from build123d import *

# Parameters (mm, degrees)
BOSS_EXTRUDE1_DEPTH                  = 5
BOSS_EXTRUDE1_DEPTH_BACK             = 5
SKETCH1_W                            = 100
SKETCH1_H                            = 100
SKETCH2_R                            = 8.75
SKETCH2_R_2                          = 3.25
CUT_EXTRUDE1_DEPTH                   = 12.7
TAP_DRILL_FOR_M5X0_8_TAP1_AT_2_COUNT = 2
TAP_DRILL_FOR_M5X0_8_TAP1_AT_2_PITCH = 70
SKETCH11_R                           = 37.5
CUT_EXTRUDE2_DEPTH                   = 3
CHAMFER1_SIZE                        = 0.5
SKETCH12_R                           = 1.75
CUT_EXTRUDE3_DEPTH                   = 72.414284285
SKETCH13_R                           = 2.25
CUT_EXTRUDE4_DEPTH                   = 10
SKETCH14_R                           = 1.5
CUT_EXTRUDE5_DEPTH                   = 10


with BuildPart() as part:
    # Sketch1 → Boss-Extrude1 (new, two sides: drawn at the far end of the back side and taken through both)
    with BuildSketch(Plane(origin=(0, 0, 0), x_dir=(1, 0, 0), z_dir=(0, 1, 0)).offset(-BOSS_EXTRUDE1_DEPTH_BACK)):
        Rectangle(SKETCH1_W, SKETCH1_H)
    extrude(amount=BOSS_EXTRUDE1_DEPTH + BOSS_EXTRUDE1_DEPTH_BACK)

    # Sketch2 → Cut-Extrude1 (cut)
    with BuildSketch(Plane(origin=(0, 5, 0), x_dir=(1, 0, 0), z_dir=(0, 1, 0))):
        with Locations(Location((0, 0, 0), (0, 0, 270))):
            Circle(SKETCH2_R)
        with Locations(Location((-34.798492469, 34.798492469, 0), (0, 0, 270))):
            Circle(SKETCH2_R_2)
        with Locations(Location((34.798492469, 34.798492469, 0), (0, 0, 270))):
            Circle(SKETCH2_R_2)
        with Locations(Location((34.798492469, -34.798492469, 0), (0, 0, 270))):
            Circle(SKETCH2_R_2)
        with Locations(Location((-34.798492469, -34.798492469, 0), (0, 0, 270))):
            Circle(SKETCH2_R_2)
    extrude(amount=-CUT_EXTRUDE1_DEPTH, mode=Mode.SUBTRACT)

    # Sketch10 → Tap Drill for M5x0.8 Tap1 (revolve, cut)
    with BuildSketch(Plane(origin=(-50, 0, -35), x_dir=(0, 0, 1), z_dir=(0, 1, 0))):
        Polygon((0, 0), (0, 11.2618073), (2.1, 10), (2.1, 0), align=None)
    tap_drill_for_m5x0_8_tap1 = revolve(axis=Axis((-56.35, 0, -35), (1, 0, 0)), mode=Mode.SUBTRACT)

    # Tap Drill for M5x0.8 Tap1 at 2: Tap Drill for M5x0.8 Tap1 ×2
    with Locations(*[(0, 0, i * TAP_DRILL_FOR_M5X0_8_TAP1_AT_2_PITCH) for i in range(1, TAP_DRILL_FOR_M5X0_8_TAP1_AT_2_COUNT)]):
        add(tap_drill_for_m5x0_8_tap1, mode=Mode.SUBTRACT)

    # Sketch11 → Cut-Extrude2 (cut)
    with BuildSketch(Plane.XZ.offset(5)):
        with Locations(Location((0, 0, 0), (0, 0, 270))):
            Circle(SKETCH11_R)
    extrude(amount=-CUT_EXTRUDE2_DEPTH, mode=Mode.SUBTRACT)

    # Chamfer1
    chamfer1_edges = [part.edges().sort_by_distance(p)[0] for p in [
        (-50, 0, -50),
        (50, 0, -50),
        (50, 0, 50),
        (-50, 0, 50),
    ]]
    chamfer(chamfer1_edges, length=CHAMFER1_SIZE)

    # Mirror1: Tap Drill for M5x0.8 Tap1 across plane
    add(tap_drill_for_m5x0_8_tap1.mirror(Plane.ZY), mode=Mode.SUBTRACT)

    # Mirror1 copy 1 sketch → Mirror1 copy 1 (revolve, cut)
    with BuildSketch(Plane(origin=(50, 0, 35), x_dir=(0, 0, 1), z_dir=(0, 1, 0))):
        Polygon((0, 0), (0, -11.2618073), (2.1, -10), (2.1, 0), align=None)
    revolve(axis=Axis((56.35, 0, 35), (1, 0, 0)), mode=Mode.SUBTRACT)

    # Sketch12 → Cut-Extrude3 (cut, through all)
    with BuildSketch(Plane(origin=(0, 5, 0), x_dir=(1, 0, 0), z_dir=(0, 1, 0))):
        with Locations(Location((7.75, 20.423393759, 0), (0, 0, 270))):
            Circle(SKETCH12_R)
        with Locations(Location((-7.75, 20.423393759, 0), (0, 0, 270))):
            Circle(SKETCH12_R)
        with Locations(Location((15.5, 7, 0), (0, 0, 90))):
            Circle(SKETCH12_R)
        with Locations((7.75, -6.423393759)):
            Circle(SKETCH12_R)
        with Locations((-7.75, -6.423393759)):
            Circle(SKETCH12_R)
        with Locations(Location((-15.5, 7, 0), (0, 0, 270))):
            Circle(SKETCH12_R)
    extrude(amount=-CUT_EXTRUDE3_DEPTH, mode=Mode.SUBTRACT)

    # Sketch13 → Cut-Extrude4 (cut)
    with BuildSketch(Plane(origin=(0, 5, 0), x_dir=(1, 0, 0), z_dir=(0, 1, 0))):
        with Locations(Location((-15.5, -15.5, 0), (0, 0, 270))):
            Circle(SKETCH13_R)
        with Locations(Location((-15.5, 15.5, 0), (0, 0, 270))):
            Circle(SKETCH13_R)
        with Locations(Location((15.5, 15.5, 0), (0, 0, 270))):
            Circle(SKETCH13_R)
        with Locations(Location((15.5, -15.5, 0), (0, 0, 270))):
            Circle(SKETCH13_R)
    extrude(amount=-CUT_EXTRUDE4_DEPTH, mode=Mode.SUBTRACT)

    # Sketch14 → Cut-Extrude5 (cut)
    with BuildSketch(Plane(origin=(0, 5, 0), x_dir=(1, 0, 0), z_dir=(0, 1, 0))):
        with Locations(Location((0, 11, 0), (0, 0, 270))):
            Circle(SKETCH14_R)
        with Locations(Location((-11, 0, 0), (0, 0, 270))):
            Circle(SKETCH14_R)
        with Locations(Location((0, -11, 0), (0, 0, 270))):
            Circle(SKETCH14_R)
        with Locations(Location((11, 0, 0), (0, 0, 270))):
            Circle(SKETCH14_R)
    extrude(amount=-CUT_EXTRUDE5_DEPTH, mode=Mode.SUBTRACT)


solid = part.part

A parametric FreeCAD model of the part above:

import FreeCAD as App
import Part
import Sketcher
from FreeCAD import Vector
Q = App.Units.Quantity


def edges_at(feature, points):
    """Names of the edges that pass closest to the given points."""
    edges = feature.Shape.Edges
    near = lambda p: min(range(len(edges)), key=lambda i: edges[i].distToShape(Part.Vertex(*p))[0])
    return sorted({f"Edge{near(p) + 1}" for p in points})


def add_polygon(sketch, points):
    """Adds a closed chain of lines whose ends are joined by coincident constraints."""
    first, n = sketch.GeometryCount, len(points)
    for a, b in zip(points, points[1:] + points[:1]):
        sketch.addGeometry(Part.LineSegment(App.Vector(*a, 0), App.Vector(*b, 0)), False)
    for i in range(n):
        sketch.addConstraint(Sketcher.Constraint("Coincident", first + i, 2, first + (i + 1) % n, 1))

doc = App.newDocument("Part")
body = doc.addObject("PartDesign::Body", "Body")

# Sketch on XZ plane
sketch1 = body.newObject("Sketcher::SketchObject", "Sketch")
sketch1.AttachmentSupport = (doc.getObject("XZ_Plane"), [""])
sketch1.MapMode = "FlatFace"
add_polygon(sketch1, [(-50, -50), (-50, 50), (50, 50), (50, -50)])  # lines 0-3
sketch1.addConstraint([
    Sketcher.Constraint("Vertical", 0),
    Sketcher.Constraint("Horizontal", 1),
    Sketcher.Constraint("Vertical", 2),
    Sketcher.Constraint("Horizontal", 3),
    Sketcher.Constraint("Symmetric", 0, 2, 2, 2, -1, 1),
    Sketcher.Constraint("Equal", 3, 0),
    Sketcher.Constraint("DistanceX", 1, 1, 1, 2, Q("100 mm")),
])
pad1 = body.newObject("PartDesign::Pad", "Pad")
pad1.Profile = sketch1
pad1.Type = "TwoLengths"
pad1.Length = 5
pad1.Length2 = 5
pad1.Reversed = True

# Sketch on XZ plane
sketch2 = body.newObject("Sketcher::SketchObject", "Sketch001")
sketch2.AttachmentSupport = (doc.getObject("XZ_Plane"), [""])
sketch2.MapMode = "FlatFace"
sketch2.AttachmentOffset = App.Placement(Vector(0, 0, -5), App.Rotation())
sketch2.addGeometry([
    Part.Circle(Vector(0, 0, 0), Vector(0, 0, 1), 8.75),  # 0
    Part.Circle(Vector(-34.798492, -34.798492, 0), Vector(0, 0, 1), 3.25),  # 1
    Part.Circle(Vector(34.798492, -34.798492, 0), Vector(0, 0, 1), 3.25),  # 2
    Part.Circle(Vector(34.798492, 34.798492, 0), Vector(0, 0, 1), 3.25),  # 3
    Part.Circle(Vector(-34.798492, 34.798492, 0), Vector(0, 0, 1), 3.25),  # 4
], False)
sketch2.addConstraint([
    Sketcher.Constraint("Coincident", 0, 3, -1, 1),
    Sketcher.Constraint("Equal", 1, 2),
    Sketcher.Constraint("Equal", 2, 3),
    Sketcher.Constraint("Equal", 3, 4),
    Sketcher.Constraint("Symmetric", 1, 3, 3, 3, -1, 1),
    Sketcher.Constraint("Symmetric", 2, 3, 4, 3, -1, 1),
    Sketcher.Constraint("Symmetric", 1, 3, 2, 3, -2),
    Sketcher.Constraint("Diameter", 0, Q("17.5 mm")),
    Sketcher.Constraint("Diameter", 1, Q("6.5 mm")),
    Sketcher.Constraint("DistanceX", 1, 3, -1, 1, Q("34.798492 mm")),
    Sketcher.Constraint("DistanceY", 1, 3, -1, 1, Q("34.798492 mm")),
])
pocket1 = body.newObject("PartDesign::Pocket", "Pocket")
pocket1.Profile = sketch2
pocket1.Length = 12.7
pocket1.Reversed = True

# Sketch on XZ plane
sketch3 = body.newObject("Sketcher::SketchObject", "Sketch002")
sketch3.AttachmentSupport = (doc.getObject("XZ_Plane"), [""])
sketch3.MapMode = "FlatFace"
add_polygon(sketch3, [(-38.738193, -35), (-50, -35), (-50, -32.9), (-40, -32.9)])  # lines 0-3
sketch3.addGeometry(Part.LineSegment(Vector(-50, -35, 0), Vector(-38.738193, -35, 0)), True)  # axis
sketch3.addConstraint([
    Sketcher.Constraint("Horizontal", 0),
    Sketcher.Constraint("Vertical", 1),
    Sketcher.Constraint("Horizontal", 2),
    Sketcher.Constraint("Horizontal", 4),
    Sketcher.Constraint("Coincident", 4, 1, 0, 2),
    Sketcher.Constraint("Equal", 0, 4),
    Sketcher.Constraint("DistanceX", 2, 1, 2, 2, Q("10 mm")),
    Sketcher.Constraint("Angle", 3, Q("-59 deg")),
    Sketcher.Constraint("DistanceY", 1, 1, 1, 2, Q("2.1 mm")),
    Sketcher.Constraint("DistanceX", 0, 2, -1, 1, Q("50 mm")),
    Sketcher.Constraint("DistanceY", 0, 2, -1, 1, Q("35 mm")),
])
groove = body.newObject("PartDesign::Groove", "Groove")
groove.Profile = sketch3
groove.ReferenceAxis = (sketch3, ["Axis0"])
groove.Angle = 360
doc.recompute()

linearpattern = body.newObject("PartDesign::LinearPattern", "LinearPattern")
linearpattern.Originals = [groove]
linearpattern.Direction = (doc.getObject("Z_Axis"), [""])
linearpattern.Mode = "offset"
linearpattern.Offset = 70
linearpattern.Occurrences = 2
body.Tip = linearpattern

# Sketch on XZ plane
sketch4 = body.newObject("Sketcher::SketchObject", "Sketch003")
sketch4.AttachmentSupport = (doc.getObject("XZ_Plane"), [""])
sketch4.MapMode = "FlatFace"
sketch4.AttachmentOffset = App.Placement(Vector(0, 0, 5), App.Rotation())
sketch4.addGeometry(Part.Circle(Vector(0, 0, 0), Vector(0, 0, 1), 37.5), False)
sketch4.addConstraint([
    Sketcher.Constraint("Coincident", 0, 3, -1, 1),
    Sketcher.Constraint("Diameter", 0, Q("75 mm")),
])
pocket2 = body.newObject("PartDesign::Pocket", "Pocket001")
pocket2.Profile = sketch4
pocket2.Length = 3
doc.recompute()

chamfer = body.newObject("PartDesign::Chamfer", "Chamfer")
chamfer.Base = (pocket2, edges_at(pocket2, [
    (-50, 0, -50),
    (50, 0, -50),
    (50, 0, 50),
    (-50, 0, 50),
]))
chamfer.Size = 0.5
doc.recompute()

mirrored = body.newObject("PartDesign::Mirrored", "Mirrored")
mirrored.Originals = [groove]
mirrored.MirrorPlane = (doc.getObject("YZ_Plane"), [""])
body.Tip = mirrored

# Sketch on XZ plane
sketch5 = body.newObject("Sketcher::SketchObject", "Sketch004")
sketch5.AttachmentSupport = (doc.getObject("XZ_Plane"), [""])
sketch5.MapMode = "FlatFace"
add_polygon(sketch5, [(50, 35), (38.738193, 35), (40, 37.1), (50, 37.1)])  # lines 0-3
sketch5.addGeometry(Part.LineSegment(Vector(38.738193, 35, 0), Vector(50, 35, 0)), True)  # axis
sketch5.addConstraint([
    Sketcher.Constraint("Horizontal", 0),
    Sketcher.Constraint("Horizontal", 2),
    Sketcher.Constraint("Vertical", 3),
    Sketcher.Constraint("Horizontal", 4),
    Sketcher.Constraint("Coincident", 4, 1, 0, 2),
    Sketcher.Constraint("Vertical", 2, 2, 4, 2),
    Sketcher.Constraint("DistanceX", 2, 1, 2, 2, Q("10 mm")),
    Sketcher.Constraint("Angle", 1, Q("59 deg")),
    Sketcher.Constraint("DistanceY", 3, 2, 3, 1, Q("2.1 mm")),
    Sketcher.Constraint("DistanceY", -1, 1, 0, 2, Q("35 mm")),
    Sketcher.Constraint("DistanceX", -1, 1, 1, 2, Q("40 mm")),
])
groove2 = body.newObject("PartDesign::Groove", "Groove001")
groove2.Profile = sketch5
groove2.ReferenceAxis = (sketch5, ["Axis0"])
groove2.Angle = 360

# Sketch on XZ plane
sketch6 = body.newObject("Sketcher::SketchObject", "Sketch005")
sketch6.AttachmentSupport = (doc.getObject("XZ_Plane"), [""])
sketch6.MapMode = "FlatFace"
sketch6.AttachmentOffset = App.Placement(Vector(0, 0, -5), App.Rotation())
sketch6.addGeometry([
    Part.Circle(Vector(7.75, -20.423394, 0), Vector(0, 0, 1), 1.75),  # 0
    Part.Circle(Vector(-7.75, -20.423394, 0), Vector(0, 0, 1), 1.75),  # 1
    Part.Circle(Vector(15.5, -7, 0), Vector(0, 0, 1), 1.75),  # 2
    Part.Circle(Vector(7.75, 6.423394, 0), Vector(0, 0, 1), 1.75),  # 3
    Part.Circle(Vector(-7.75, 6.423394, 0), Vector(0, 0, 1), 1.75),  # 4
    Part.Circle(Vector(-15.5, -7, 0), Vector(0, 0, 1), 1.75),  # 5
], False)
sketch6.addConstraint([
    Sketcher.Constraint("Equal", 0, 1),
    Sketcher.Constraint("Equal", 1, 2),
    Sketcher.Constraint("Equal", 2, 3),
    Sketcher.Constraint("Equal", 3, 4),
    Sketcher.Constraint("Equal", 4, 5),
    Sketcher.Constraint("Symmetric", 0, 3, 1, 3, -2),
    Sketcher.Constraint("Symmetric", 3, 3, 4, 3, -2),
    Sketcher.Constraint("Symmetric", 2, 3, 5, 3, -2),
    Sketcher.Constraint("Vertical", 0, 3, 3, 3),
    Sketcher.Constraint("Diameter", 0, Q("3.5 mm")),
    Sketcher.Constraint("DistanceY", 2, 3, -1, 1, Q("7 mm")),
    Sketcher.Constraint("DistanceX", 5, 3, 2, 3, Q("31 mm")),
    Sketcher.Constraint("DistanceX", 1, 3, 0, 3, Q("15.5 mm")),
    Sketcher.Constraint("DistanceY", 0, 3, -1, 1, Q("20.423394 mm")),
    Sketcher.Constraint("DistanceY", -1, 1, 3, 3, Q("6.423394 mm")),
])
pocket3 = body.newObject("PartDesign::Pocket", "Pocket002")
pocket3.Profile = sketch6
pocket3.Type = "ThroughAll"
pocket3.Reversed = True

# Sketch on XZ plane
sketch7 = body.newObject("Sketcher::SketchObject", "Sketch006")
sketch7.AttachmentSupport = (doc.getObject("XZ_Plane"), [""])
sketch7.MapMode = "FlatFace"
sketch7.AttachmentOffset = App.Placement(Vector(0, 0, -5), App.Rotation())
sketch7.addGeometry([
    Part.Circle(Vector(-15.5, 15.5, 0), Vector(0, 0, 1), 2.25),
    Part.Circle(Vector(-15.5, -15.5, 0), Vector(0, 0, 1), 2.25),
    Part.Circle(Vector(15.5, -15.5, 0), Vector(0, 0, 1), 2.25),
    Part.Circle(Vector(15.5, 15.5, 0), Vector(0, 0, 1), 2.25),
], False)
sketch7.addConstraint([
    Sketcher.Constraint("Equal", 0, 1),
    Sketcher.Constraint("Equal", 1, 2),
    Sketcher.Constraint("Equal", 2, 3),
    Sketcher.Constraint("Symmetric", 0, 3, 2, 3, -1, 1),
    Sketcher.Constraint("Symmetric", 1, 3, 3, 3, -1, 1),
    Sketcher.Constraint("Symmetric", 1, 3, 2, 3, -2),
    Sketcher.Constraint("Diameter", 0, Q("4.5 mm")),
    Sketcher.Constraint("DistanceY", 1, 3, 0, 3, Q("31 mm")),
    Sketcher.Constraint("DistanceX", 1, 3, 2, 3, Q("31 mm")),
])
pocket4 = body.newObject("PartDesign::Pocket", "Pocket003")
pocket4.Profile = sketch7
pocket4.Length = 10
pocket4.Reversed = True

# Sketch on XZ plane
sketch8 = body.newObject("Sketcher::SketchObject", "Sketch007")
sketch8.AttachmentSupport = (doc.getObject("XZ_Plane"), [""])
sketch8.MapMode = "FlatFace"
sketch8.AttachmentOffset = App.Placement(Vector(0, 0, -5), App.Rotation())
sketch8.addGeometry([
    Part.Circle(Vector(0, -11, 0), Vector(0, 0, 1), 1.5),
    Part.Circle(Vector(-11, 0, 0), Vector(0, 0, 1), 1.5),
    Part.Circle(Vector(0, 11, 0), Vector(0, 0, 1), 1.5),
    Part.Circle(Vector(11, 0, 0), Vector(0, 0, 1), 1.5),
], False)
sketch8.addConstraint([
    Sketcher.Constraint("Equal", 0, 1),
    Sketcher.Constraint("Equal", 1, 2),
    Sketcher.Constraint("Equal", 2, 3),
    Sketcher.Constraint("Symmetric", 0, 3, 2, 3, -1, 1),
    Sketcher.Constraint("Symmetric", 1, 3, 3, 3, -1, 1),
    Sketcher.Constraint("PointOnObject", 0, 3, -2),
    Sketcher.Constraint("PointOnObject", 1, 3, -1),
    Sketcher.Constraint("Diameter", 0, Q("3 mm")),
    Sketcher.Constraint("DistanceY", 0, 3, -1, 1, Q("11 mm")),
    Sketcher.Constraint("DistanceX", 1, 3, -1, 1, Q("11 mm")),
])
pocket5 = body.newObject("PartDesign::Pocket", "Pocket004")
pocket5.Profile = sketch8
pocket5.Length = 10
pocket5.Reversed = True

doc.recompute()
